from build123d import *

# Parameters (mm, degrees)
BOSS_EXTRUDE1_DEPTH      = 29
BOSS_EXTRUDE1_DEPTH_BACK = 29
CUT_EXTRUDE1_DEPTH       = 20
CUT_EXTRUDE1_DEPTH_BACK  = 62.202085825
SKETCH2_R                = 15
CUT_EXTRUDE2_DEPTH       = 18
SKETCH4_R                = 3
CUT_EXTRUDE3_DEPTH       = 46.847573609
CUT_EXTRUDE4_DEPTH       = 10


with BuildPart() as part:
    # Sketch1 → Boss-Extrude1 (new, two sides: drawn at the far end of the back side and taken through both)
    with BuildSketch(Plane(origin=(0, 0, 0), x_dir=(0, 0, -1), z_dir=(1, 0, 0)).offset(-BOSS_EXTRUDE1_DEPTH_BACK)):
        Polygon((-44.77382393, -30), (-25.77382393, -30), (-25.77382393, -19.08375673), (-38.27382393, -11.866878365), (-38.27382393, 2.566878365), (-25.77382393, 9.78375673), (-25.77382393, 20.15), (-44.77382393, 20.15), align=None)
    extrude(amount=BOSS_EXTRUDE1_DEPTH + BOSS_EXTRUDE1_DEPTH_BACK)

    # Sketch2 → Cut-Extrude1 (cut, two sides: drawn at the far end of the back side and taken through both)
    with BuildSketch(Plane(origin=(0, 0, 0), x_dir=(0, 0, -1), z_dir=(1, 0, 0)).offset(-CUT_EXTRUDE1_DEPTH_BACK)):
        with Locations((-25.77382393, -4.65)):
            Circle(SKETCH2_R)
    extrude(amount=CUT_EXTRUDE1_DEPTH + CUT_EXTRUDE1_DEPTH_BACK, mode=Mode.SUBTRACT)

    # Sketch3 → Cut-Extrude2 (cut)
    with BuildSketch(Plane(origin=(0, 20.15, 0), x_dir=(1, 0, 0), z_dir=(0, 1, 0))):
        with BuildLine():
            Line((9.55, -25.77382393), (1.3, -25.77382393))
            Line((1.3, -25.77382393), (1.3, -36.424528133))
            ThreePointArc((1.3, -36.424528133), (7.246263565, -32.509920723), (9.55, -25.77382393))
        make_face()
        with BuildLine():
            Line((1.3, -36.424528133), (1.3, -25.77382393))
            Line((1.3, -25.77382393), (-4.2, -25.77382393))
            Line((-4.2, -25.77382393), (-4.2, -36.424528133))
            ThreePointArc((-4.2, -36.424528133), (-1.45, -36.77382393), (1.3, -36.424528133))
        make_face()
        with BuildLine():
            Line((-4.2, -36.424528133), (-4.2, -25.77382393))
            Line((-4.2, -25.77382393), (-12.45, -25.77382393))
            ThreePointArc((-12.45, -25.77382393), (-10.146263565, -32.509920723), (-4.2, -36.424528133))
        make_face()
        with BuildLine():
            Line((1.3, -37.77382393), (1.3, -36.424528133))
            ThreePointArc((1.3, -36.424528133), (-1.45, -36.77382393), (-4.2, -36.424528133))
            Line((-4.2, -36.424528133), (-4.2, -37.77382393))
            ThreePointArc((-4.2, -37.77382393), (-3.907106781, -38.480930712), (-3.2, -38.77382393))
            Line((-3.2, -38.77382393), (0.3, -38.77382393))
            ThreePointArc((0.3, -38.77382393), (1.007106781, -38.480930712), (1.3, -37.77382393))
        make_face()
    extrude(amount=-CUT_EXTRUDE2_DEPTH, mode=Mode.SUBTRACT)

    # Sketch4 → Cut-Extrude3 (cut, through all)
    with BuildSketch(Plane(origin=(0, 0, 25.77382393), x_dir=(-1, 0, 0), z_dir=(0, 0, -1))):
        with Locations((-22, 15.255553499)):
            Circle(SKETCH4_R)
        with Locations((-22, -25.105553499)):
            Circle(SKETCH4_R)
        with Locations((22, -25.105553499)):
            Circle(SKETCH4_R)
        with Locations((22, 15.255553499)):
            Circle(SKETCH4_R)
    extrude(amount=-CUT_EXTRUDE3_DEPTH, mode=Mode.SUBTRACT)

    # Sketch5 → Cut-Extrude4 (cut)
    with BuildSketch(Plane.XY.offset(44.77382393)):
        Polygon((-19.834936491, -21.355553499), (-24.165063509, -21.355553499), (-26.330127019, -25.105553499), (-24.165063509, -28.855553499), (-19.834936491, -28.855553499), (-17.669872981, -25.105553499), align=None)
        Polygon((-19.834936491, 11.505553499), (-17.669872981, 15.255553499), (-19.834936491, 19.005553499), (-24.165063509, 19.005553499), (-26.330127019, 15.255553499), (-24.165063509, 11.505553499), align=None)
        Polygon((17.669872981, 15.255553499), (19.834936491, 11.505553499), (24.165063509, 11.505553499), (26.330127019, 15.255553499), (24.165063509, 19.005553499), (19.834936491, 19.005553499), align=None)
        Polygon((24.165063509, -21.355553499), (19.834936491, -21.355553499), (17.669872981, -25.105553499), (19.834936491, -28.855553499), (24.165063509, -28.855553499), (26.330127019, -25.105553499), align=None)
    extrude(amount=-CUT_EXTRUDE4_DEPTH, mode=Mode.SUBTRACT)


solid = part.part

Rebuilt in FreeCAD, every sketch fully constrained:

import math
import FreeCAD as App
import Part
import Sketcher

V = App.Vector
Q = App.Units.Quantity


def add_polygon(sketch, points):
    """Adds a closed chain of lines whose ends are joined by coincident constraints."""
    first, n = sketch.GeometryCount, len(points)
    for a, b in zip(points, points[1:] + points[:1]):
        sketch.addGeometry(Part.LineSegment(App.Vector(*a, 0), App.Vector(*b, 0)), False)
    for i in range(n):
        sketch.addConstraint(Sketcher.Constraint("Coincident", first + i, 2, first + (i + 1) % n, 1))

doc = App.newDocument("Part")
body = doc.addObject("PartDesign::Body", "Body")

sketch1 = body.newObject("Sketcher::SketchObject", "Sketch")
sketch1.AttachmentSupport = (doc.getObject("YZ_Plane"), [""])
sketch1.MapMode = "FlatFace"
add_polygon(sketch1, [(-30, 45), (-30, 26), (-19, 26), (-12, 38), (3, 38), (10, 26), (20, 26), (20, 45)])
sketch1.addConstraint(Sketcher.Constraint("Vertical", 0))
sketch1.addConstraint(Sketcher.Constraint("Horizontal", 1))
sketch1.addConstraint(Sketcher.Constraint("Horizontal", 3))
sketch1.addConstraint(Sketcher.Constraint("Horizontal", 5))
sketch1.addConstraint(Sketcher.Constraint("Vertical", 6))
sketch1.addConstraint(Sketcher.Constraint("Horizontal", 7))
sketch1.addConstraint(Sketcher.Constraint("Horizontal", 1, 2, 4, 2))
sketch1.addConstraint(Sketcher.Constraint("Equal", 2, 4))
sketch1.addConstraint(Sketcher.Constraint("DistanceY", 0, 2, 0, 1, Q("19 mm")))
sketch1.addConstraint(Sketcher.Constraint("Angle", 2, Q("60 deg")))
sketch1.addConstraint(Sketcher.Constraint("DistanceX", 0, 2, -1, 1, Q("30 mm")))
sketch1.addConstraint(Sketcher.Constraint("DistanceX", 7, 2, 7, 1, Q("50.15 mm")))
sketch1.addConstraint(Sketcher.Constraint("DistanceY", 1, 2, 2, 2, Q("12.5 mm")))
sketch1.addConstraint(Sketcher.Constraint("DistanceX", 1, 1, 1, 2, Q("10.916243 mm")))
sketch1.addConstraint(Sketcher.Constraint("DistanceX", 3, 1, 3, 2, Q("14.433757 mm")))
sketch1.addConstraint(Sketcher.Constraint("DistanceY", -1, 1, 0, 2, Q("25.773824 mm")))
pad1 = body.newObject("PartDesign::Pad", "Pad")
pad1.Profile = sketch1
pad1.Type = "TwoLengths"
pad1.Length = 29
pad1.Length2 = 29

sketch2 = body.newObject("Sketcher::SketchObject", "Sketch001")
sketch2.AttachmentSupport = (doc.getObject("YZ_Plane"), [""])
sketch2.MapMode = "FlatFace"
sketch2.addGeometry(Part.Circle(V(-5, 26, 0), V(0, 0, 1), 15), False)
sketch2.addConstraint(Sketcher.Constraint("Diameter", 0, Q("30 mm")))
sketch2.addConstraint(Sketcher.Constraint("DistanceX", 0, 3, -1, 1, Q("4.65 mm")))
sketch2.addConstraint(Sketcher.Constraint("DistanceY", -1, 1, 0, 3, Q("25.773824 mm")))
pocket1 = body.newObject("PartDesign::Pocket", "Pocket")
pocket1.Profile = sketch2
pocket1.Type = "TwoLengths"
pocket1.Length = 20
pocket1.Length2 = 62.202086
pocket1.Reversed = True

sketch3 = body.newObject("Sketcher::SketchObject", "Sketch002")
sketch3.AttachmentSupport = (doc.getObject("XZ_Plane"), [""])
sketch3.MapMode = "FlatFace"
sketch3.AttachmentOffset = App.Placement(V(0, 0, -20.15), App.Rotation())
sketch3.addGeometry(Part.LineSegment(V(9.6, 25.8, 0), V(-12.4, 25.8, 0)), False)
sketch3.addGeometry(Part.ArcOfCircle(Part.Circle(V(-1.4, 25.8, 0), V(0, 0, 1), 11), math.radians(104), math.radians(180)), False)
sketch3.addGeometry(Part.LineSegment(V(-4.2, 36.4, 0), V(-4.2, 37.8, 0)), False)
sketch3.addGeometry(Part.ArcOfCircle(Part.Circle(V(-3.2, 37.8, 0), V(0, 0, 1), 1), math.radians(90), math.radians(180)), False)
sketch3.addGeometry(Part.LineSegment(V(-3.2, 38.8, 0), V(0.3, 38.8, 0)), False)
sketch3.addGeometry(Part.ArcOfCircle(Part.Circle(V(0.3, 37.8, 0), V(0, 0, 1), 1), math.radians(0), math.radians(90)), False)
sketch3.addGeometry(Part.LineSegment(V(1.3, 37.8, 0), V(1.3, 36.4, 0)), False)
sketch3.addGeometry(Part.ArcOfCircle(Part.Circle(V(-1.5, 25.8, 0), V(0, 0, 1), 11), math.radians(0), math.radians(76)), False)
sketch3.addConstraint(Sketcher.Constraint("Coincident", 0, 2, 1, 2))
sketch3.addConstraint(Sketcher.Constraint("Coincident", 1, 1, 2, 1))
sketch3.addConstraint(Sketcher.Constraint("Tangent", 2, 2, 3, 2))
sketch3.addConstraint(Sketcher.Constraint("Tangent", 3, 1, 4, 1))
sketch3.addConstraint(Sketcher.Constraint("Tangent", 4, 2, 5, 2))
sketch3.addConstraint(Sketcher.Constraint("Tangent", 5, 1, 6, 1))
sketch3.addConstraint(Sketcher.Constraint("Coincident", 6, 2, 7, 2))
sketch3.addConstraint(Sketcher.Constraint("Coincident", 7, 1, 0, 1))
sketch3.addConstraint(Sketcher.Constraint("Horizontal", 0))
sketch3.addConstraint(Sketcher.Constraint("Vertical", 2))
sketch3.addConstraint(Sketcher.Constraint("Horizontal", 4))
sketch3.addConstraint(Sketcher.Constraint("Vertical", 6))
sketch3.addConstraint(Sketcher.Constraint("Coincident", 7, 3, 1, 3))
sketch3.addConstraint(Sketcher.Constraint("Equal", 3, 5))
sketch3.addConstraint(Sketcher.Constraint("Equal", 1, 7))
sketch3.addConstraint(Sketcher.Constraint("Horizontal", 7, 3, 0, 2))
sketch3.addConstraint(Sketcher.Constraint("Horizontal", 1, 1, 6, 2))
sketch3.addConstraint(Sketcher.Constraint("Radius", 1, Q("11 mm")))
sketch3.addConstraint(Sketcher.Constraint("Radius", 3, Q("1 mm")))
sketch3.addConstraint(Sketcher.Constraint("DistanceX", 4, 1, 4, 2, Q("3.5 mm")))
sketch3.addConstraint(Sketcher.Constraint("DistanceY", 1, 3, 3, 3, Q("12 mm")))
sketch3.addConstraint(Sketcher.Constraint("DistanceX", 3, 3, -1, 1, Q("3.2 mm")))
sketch3.addConstraint(Sketcher.Constraint("DistanceY", -1, 1, 1, 1, Q("36.424528 mm")))
pocket2 = body.newObject("PartDesign::Pocket", "Pocket001")
pocket2.Profile = sketch3
pocket2.Length = 18
pocket2.Reversed = True

sketch4 = body.newObject("Sketcher::SketchObject", "Sketch003")
sketch4.AttachmentSupport = (doc.getObject("XY_Plane"), [""])
sketch4.MapMode = "FlatFace"
sketch4.AttachmentOffset = App.Placement(V(0, 0, 25.773824), App.Rotation())
sketch4.addGeometry(Part.Circle(V(22, 15.3, 0), V(0, 0, 1), 3), False)
sketch4.addGeometry(Part.Circle(V(22, -25.1, 0), V(0, 0, 1), 3), False)
sketch4.addGeometry(Part.Circle(V(-22, -25.1, 0), V(0, 0, 1), 3), False)
sketch4.addGeometry(Part.Circle(V(-22, 15.3, 0), V(0, 0, 1), 3), False)
sketch4.addConstraint(Sketcher.Constraint("Equal", 0, 1))
sketch4.addConstraint(Sketcher.Constraint("Equal", 1, 2))
sketch4.addConstraint(Sketcher.Constraint("Equal", 2, 3))
sketch4.addConstraint(Sketcher.Constraint("Symmetric", 1, 3, 2, 3, -2))
sketch4.addConstraint(Sketcher.Constraint("Symmetric", 0, 3, 3, 3, -2))
sketch4.addConstraint(Sketcher.Constraint("Vertical", 0, 3, 1, 3))
sketch4.addConstraint(Sketcher.Constraint("Diameter", 0, Q("6 mm")))
sketch4.addConstraint(Sketcher.Constraint("DistanceX", -1, 1, 0, 3, Q("22 mm")))
sketch4.addConstraint(Sketcher.Constraint("DistanceY", -1, 1, 0, 3, Q("15.255553 mm")))
sketch4.addConstraint(Sketcher.Constraint("DistanceY", 1, 3, -1, 1, Q("25.105553 mm")))
pocket3 = body.newObject("PartDesign::Pocket", "Pocket002")
pocket3.Profile = sketch4
pocket3.Type = "ThroughAll"
pocket3.Reversed = True

sketch5 = body.newObject("Sketcher::SketchObject", "Sketch004")
sketch5.AttachmentSupport = (doc.getObject("XY_Plane"), [""])
sketch5.MapMode = "FlatFace"
sketch5.AttachmentOffset = App.Placement(V(0, 0, 44.773824), App.Rotation())
add_polygon(sketch5, [(-19.8, -21.4), (-24.2, -21.4), (-26.3, -25.1), (-24.2, -28.9), (-19.8, -28.9), (-17.7, -25.1)])
add_polygon(sketch5, [(-19.8, 11.5), (-17.7, 15.3), (-19.8, 19), (-24.2, 19), (-26.3, 15.3), (-24.2, 11.5)])
add_polygon(sketch5, [(17.7, 15.3), (19.8, 11.5), (24.2, 11.5), (26.3, 15.3), (24.2, 19), (19.8, 19)])
add_polygon(sketch5, [(24.2, -21.4), (19.8, -21.4), (17.7, -25.1), (19.8, -28.9), (24.2, -28.9), (26.3, -25.1)])
sketch5.addConstraint(Sketcher.Constraint("Horizontal", 0))
sketch5.addConstraint(Sketcher.Constraint("Horizontal", 3))
sketch5.addConstraint(Sketcher.Constraint("Horizontal", 8))
sketch5.addConstraint(Sketcher.Constraint("Horizontal", 11))
sketch5.addConstraint(Sketcher.Constraint("Horizontal", 13))
sketch5.addConstraint(Sketcher.Constraint("Horizontal", 16))
sketch5.addConstraint(Sketcher.Constraint("Horizontal", 18))
sketch5.addConstraint(Sketcher.Constraint("Horizontal", 21))
sketch5.addConstraint(Sketcher.Constraint("Symmetric", 11, 2, 12, 2, -2))
sketch5.addConstraint(Sketcher.Constraint("Symmetric", 9, 2, 14, 2, -2))
sketch5.addConstraint(Sketcher.Constraint("Symmetric", 8, 2, 15, 2, -2))
sketch5.addConstraint(Sketcher.Constraint("Symmetric", 6, 2, 17, 2, -2))
sketch5.addConstraint(Sketcher.Constraint("Symmetric", 5, 2, 18, 2, -2))
sketch5.addConstraint(Sketcher.Constraint("Symmetric", 4, 2, 19, 2, -2))
sketch5.addConstraint(Sketcher.Constraint("Symmetric", 3, 2, 20, 2, -2))
sketch5.addConstraint(Sketcher.Constraint("Symmetric", 1, 2, 22, 2, -2))
sketch5.addConstraint(Sketcher.Constraint("Parallel", 1, 4))
sketch5.addConstraint(Sketcher.Constraint("Parallel", 2, 5))
sketch5.addConstraint(Sketcher.Constraint("Parallel", 4, 6))
sketch5.addConstraint(Sketcher.Constraint("Parallel", 5, 7))
sketch5.addConstraint(Sketcher.Constraint("Parallel", 6, 9))
sketch5.addConstraint(Sketcher.Constraint("Parallel", 7, 10))
sketch5.addConstraint(Sketcher.Constraint("Parallel", 10, 12))
sketch5.addConstraint(Sketcher.Constraint("Parallel", 9, 14))
sketch5.addConstraint(Sketcher.Constraint("Parallel", 14, 17))
sketch5.addConstraint(Sketcher.Constraint("Parallel", 19, 22))
sketch5.addConstraint(Sketcher.Constraint("Parallel", 20, 23))
sketch5.addConstraint(Sketcher.Constraint("Horizontal", 1, 2, 4, 2))
sketch5.addConstraint(Sketcher.Constraint("Horizontal", 6, 2, 9, 2))
sketch5.addConstraint(Sketcher.Constraint("Vertical", 0, 2, 2, 2))
sketch5.addConstraint(Sketcher.Constraint("Vertical", 4, 2, 6, 2))
sketch5.addConstraint(Sketcher.Constraint("Vertical", 5, 2, 7, 2))
sketch5.addConstraint(Sketcher.Constraint("Vertical", 2, 2, 8, 2))
sketch5.addConstraint(Sketcher.Constraint("Vertical", 8, 2, 10, 2))
sketch5.addConstraint(Sketcher.Constraint("Angle", 1, Q("-120 deg")))
sketch5.addConstraint(Sketcher.Constraint("DistanceX", 10, 2, 12, 2, Q("44 mm")))
sketch5.addConstraint(Sketcher.Constraint("DistanceY", 2, 2, 0, 2, Q("7.5 mm")))
sketch5.addConstraint(Sketcher.Constraint("DistanceX", 0, 2, 0, 1, Q("4.330127 mm")))
sketch5.addConstraint(Sketcher.Constraint("DistanceY", 0, 2, -1, 1, Q("21.355553 mm")))
sketch5.addConstraint(Sketcher.Constraint("DistanceY", -1, 1, 6, 2, Q("15.255553 mm")))
pocket4 = body.newObject("PartDesign::Pocket", "Pocket003")
pocket4.Profile = sketch5
pocket4.Length = 10

doc.recompute()
